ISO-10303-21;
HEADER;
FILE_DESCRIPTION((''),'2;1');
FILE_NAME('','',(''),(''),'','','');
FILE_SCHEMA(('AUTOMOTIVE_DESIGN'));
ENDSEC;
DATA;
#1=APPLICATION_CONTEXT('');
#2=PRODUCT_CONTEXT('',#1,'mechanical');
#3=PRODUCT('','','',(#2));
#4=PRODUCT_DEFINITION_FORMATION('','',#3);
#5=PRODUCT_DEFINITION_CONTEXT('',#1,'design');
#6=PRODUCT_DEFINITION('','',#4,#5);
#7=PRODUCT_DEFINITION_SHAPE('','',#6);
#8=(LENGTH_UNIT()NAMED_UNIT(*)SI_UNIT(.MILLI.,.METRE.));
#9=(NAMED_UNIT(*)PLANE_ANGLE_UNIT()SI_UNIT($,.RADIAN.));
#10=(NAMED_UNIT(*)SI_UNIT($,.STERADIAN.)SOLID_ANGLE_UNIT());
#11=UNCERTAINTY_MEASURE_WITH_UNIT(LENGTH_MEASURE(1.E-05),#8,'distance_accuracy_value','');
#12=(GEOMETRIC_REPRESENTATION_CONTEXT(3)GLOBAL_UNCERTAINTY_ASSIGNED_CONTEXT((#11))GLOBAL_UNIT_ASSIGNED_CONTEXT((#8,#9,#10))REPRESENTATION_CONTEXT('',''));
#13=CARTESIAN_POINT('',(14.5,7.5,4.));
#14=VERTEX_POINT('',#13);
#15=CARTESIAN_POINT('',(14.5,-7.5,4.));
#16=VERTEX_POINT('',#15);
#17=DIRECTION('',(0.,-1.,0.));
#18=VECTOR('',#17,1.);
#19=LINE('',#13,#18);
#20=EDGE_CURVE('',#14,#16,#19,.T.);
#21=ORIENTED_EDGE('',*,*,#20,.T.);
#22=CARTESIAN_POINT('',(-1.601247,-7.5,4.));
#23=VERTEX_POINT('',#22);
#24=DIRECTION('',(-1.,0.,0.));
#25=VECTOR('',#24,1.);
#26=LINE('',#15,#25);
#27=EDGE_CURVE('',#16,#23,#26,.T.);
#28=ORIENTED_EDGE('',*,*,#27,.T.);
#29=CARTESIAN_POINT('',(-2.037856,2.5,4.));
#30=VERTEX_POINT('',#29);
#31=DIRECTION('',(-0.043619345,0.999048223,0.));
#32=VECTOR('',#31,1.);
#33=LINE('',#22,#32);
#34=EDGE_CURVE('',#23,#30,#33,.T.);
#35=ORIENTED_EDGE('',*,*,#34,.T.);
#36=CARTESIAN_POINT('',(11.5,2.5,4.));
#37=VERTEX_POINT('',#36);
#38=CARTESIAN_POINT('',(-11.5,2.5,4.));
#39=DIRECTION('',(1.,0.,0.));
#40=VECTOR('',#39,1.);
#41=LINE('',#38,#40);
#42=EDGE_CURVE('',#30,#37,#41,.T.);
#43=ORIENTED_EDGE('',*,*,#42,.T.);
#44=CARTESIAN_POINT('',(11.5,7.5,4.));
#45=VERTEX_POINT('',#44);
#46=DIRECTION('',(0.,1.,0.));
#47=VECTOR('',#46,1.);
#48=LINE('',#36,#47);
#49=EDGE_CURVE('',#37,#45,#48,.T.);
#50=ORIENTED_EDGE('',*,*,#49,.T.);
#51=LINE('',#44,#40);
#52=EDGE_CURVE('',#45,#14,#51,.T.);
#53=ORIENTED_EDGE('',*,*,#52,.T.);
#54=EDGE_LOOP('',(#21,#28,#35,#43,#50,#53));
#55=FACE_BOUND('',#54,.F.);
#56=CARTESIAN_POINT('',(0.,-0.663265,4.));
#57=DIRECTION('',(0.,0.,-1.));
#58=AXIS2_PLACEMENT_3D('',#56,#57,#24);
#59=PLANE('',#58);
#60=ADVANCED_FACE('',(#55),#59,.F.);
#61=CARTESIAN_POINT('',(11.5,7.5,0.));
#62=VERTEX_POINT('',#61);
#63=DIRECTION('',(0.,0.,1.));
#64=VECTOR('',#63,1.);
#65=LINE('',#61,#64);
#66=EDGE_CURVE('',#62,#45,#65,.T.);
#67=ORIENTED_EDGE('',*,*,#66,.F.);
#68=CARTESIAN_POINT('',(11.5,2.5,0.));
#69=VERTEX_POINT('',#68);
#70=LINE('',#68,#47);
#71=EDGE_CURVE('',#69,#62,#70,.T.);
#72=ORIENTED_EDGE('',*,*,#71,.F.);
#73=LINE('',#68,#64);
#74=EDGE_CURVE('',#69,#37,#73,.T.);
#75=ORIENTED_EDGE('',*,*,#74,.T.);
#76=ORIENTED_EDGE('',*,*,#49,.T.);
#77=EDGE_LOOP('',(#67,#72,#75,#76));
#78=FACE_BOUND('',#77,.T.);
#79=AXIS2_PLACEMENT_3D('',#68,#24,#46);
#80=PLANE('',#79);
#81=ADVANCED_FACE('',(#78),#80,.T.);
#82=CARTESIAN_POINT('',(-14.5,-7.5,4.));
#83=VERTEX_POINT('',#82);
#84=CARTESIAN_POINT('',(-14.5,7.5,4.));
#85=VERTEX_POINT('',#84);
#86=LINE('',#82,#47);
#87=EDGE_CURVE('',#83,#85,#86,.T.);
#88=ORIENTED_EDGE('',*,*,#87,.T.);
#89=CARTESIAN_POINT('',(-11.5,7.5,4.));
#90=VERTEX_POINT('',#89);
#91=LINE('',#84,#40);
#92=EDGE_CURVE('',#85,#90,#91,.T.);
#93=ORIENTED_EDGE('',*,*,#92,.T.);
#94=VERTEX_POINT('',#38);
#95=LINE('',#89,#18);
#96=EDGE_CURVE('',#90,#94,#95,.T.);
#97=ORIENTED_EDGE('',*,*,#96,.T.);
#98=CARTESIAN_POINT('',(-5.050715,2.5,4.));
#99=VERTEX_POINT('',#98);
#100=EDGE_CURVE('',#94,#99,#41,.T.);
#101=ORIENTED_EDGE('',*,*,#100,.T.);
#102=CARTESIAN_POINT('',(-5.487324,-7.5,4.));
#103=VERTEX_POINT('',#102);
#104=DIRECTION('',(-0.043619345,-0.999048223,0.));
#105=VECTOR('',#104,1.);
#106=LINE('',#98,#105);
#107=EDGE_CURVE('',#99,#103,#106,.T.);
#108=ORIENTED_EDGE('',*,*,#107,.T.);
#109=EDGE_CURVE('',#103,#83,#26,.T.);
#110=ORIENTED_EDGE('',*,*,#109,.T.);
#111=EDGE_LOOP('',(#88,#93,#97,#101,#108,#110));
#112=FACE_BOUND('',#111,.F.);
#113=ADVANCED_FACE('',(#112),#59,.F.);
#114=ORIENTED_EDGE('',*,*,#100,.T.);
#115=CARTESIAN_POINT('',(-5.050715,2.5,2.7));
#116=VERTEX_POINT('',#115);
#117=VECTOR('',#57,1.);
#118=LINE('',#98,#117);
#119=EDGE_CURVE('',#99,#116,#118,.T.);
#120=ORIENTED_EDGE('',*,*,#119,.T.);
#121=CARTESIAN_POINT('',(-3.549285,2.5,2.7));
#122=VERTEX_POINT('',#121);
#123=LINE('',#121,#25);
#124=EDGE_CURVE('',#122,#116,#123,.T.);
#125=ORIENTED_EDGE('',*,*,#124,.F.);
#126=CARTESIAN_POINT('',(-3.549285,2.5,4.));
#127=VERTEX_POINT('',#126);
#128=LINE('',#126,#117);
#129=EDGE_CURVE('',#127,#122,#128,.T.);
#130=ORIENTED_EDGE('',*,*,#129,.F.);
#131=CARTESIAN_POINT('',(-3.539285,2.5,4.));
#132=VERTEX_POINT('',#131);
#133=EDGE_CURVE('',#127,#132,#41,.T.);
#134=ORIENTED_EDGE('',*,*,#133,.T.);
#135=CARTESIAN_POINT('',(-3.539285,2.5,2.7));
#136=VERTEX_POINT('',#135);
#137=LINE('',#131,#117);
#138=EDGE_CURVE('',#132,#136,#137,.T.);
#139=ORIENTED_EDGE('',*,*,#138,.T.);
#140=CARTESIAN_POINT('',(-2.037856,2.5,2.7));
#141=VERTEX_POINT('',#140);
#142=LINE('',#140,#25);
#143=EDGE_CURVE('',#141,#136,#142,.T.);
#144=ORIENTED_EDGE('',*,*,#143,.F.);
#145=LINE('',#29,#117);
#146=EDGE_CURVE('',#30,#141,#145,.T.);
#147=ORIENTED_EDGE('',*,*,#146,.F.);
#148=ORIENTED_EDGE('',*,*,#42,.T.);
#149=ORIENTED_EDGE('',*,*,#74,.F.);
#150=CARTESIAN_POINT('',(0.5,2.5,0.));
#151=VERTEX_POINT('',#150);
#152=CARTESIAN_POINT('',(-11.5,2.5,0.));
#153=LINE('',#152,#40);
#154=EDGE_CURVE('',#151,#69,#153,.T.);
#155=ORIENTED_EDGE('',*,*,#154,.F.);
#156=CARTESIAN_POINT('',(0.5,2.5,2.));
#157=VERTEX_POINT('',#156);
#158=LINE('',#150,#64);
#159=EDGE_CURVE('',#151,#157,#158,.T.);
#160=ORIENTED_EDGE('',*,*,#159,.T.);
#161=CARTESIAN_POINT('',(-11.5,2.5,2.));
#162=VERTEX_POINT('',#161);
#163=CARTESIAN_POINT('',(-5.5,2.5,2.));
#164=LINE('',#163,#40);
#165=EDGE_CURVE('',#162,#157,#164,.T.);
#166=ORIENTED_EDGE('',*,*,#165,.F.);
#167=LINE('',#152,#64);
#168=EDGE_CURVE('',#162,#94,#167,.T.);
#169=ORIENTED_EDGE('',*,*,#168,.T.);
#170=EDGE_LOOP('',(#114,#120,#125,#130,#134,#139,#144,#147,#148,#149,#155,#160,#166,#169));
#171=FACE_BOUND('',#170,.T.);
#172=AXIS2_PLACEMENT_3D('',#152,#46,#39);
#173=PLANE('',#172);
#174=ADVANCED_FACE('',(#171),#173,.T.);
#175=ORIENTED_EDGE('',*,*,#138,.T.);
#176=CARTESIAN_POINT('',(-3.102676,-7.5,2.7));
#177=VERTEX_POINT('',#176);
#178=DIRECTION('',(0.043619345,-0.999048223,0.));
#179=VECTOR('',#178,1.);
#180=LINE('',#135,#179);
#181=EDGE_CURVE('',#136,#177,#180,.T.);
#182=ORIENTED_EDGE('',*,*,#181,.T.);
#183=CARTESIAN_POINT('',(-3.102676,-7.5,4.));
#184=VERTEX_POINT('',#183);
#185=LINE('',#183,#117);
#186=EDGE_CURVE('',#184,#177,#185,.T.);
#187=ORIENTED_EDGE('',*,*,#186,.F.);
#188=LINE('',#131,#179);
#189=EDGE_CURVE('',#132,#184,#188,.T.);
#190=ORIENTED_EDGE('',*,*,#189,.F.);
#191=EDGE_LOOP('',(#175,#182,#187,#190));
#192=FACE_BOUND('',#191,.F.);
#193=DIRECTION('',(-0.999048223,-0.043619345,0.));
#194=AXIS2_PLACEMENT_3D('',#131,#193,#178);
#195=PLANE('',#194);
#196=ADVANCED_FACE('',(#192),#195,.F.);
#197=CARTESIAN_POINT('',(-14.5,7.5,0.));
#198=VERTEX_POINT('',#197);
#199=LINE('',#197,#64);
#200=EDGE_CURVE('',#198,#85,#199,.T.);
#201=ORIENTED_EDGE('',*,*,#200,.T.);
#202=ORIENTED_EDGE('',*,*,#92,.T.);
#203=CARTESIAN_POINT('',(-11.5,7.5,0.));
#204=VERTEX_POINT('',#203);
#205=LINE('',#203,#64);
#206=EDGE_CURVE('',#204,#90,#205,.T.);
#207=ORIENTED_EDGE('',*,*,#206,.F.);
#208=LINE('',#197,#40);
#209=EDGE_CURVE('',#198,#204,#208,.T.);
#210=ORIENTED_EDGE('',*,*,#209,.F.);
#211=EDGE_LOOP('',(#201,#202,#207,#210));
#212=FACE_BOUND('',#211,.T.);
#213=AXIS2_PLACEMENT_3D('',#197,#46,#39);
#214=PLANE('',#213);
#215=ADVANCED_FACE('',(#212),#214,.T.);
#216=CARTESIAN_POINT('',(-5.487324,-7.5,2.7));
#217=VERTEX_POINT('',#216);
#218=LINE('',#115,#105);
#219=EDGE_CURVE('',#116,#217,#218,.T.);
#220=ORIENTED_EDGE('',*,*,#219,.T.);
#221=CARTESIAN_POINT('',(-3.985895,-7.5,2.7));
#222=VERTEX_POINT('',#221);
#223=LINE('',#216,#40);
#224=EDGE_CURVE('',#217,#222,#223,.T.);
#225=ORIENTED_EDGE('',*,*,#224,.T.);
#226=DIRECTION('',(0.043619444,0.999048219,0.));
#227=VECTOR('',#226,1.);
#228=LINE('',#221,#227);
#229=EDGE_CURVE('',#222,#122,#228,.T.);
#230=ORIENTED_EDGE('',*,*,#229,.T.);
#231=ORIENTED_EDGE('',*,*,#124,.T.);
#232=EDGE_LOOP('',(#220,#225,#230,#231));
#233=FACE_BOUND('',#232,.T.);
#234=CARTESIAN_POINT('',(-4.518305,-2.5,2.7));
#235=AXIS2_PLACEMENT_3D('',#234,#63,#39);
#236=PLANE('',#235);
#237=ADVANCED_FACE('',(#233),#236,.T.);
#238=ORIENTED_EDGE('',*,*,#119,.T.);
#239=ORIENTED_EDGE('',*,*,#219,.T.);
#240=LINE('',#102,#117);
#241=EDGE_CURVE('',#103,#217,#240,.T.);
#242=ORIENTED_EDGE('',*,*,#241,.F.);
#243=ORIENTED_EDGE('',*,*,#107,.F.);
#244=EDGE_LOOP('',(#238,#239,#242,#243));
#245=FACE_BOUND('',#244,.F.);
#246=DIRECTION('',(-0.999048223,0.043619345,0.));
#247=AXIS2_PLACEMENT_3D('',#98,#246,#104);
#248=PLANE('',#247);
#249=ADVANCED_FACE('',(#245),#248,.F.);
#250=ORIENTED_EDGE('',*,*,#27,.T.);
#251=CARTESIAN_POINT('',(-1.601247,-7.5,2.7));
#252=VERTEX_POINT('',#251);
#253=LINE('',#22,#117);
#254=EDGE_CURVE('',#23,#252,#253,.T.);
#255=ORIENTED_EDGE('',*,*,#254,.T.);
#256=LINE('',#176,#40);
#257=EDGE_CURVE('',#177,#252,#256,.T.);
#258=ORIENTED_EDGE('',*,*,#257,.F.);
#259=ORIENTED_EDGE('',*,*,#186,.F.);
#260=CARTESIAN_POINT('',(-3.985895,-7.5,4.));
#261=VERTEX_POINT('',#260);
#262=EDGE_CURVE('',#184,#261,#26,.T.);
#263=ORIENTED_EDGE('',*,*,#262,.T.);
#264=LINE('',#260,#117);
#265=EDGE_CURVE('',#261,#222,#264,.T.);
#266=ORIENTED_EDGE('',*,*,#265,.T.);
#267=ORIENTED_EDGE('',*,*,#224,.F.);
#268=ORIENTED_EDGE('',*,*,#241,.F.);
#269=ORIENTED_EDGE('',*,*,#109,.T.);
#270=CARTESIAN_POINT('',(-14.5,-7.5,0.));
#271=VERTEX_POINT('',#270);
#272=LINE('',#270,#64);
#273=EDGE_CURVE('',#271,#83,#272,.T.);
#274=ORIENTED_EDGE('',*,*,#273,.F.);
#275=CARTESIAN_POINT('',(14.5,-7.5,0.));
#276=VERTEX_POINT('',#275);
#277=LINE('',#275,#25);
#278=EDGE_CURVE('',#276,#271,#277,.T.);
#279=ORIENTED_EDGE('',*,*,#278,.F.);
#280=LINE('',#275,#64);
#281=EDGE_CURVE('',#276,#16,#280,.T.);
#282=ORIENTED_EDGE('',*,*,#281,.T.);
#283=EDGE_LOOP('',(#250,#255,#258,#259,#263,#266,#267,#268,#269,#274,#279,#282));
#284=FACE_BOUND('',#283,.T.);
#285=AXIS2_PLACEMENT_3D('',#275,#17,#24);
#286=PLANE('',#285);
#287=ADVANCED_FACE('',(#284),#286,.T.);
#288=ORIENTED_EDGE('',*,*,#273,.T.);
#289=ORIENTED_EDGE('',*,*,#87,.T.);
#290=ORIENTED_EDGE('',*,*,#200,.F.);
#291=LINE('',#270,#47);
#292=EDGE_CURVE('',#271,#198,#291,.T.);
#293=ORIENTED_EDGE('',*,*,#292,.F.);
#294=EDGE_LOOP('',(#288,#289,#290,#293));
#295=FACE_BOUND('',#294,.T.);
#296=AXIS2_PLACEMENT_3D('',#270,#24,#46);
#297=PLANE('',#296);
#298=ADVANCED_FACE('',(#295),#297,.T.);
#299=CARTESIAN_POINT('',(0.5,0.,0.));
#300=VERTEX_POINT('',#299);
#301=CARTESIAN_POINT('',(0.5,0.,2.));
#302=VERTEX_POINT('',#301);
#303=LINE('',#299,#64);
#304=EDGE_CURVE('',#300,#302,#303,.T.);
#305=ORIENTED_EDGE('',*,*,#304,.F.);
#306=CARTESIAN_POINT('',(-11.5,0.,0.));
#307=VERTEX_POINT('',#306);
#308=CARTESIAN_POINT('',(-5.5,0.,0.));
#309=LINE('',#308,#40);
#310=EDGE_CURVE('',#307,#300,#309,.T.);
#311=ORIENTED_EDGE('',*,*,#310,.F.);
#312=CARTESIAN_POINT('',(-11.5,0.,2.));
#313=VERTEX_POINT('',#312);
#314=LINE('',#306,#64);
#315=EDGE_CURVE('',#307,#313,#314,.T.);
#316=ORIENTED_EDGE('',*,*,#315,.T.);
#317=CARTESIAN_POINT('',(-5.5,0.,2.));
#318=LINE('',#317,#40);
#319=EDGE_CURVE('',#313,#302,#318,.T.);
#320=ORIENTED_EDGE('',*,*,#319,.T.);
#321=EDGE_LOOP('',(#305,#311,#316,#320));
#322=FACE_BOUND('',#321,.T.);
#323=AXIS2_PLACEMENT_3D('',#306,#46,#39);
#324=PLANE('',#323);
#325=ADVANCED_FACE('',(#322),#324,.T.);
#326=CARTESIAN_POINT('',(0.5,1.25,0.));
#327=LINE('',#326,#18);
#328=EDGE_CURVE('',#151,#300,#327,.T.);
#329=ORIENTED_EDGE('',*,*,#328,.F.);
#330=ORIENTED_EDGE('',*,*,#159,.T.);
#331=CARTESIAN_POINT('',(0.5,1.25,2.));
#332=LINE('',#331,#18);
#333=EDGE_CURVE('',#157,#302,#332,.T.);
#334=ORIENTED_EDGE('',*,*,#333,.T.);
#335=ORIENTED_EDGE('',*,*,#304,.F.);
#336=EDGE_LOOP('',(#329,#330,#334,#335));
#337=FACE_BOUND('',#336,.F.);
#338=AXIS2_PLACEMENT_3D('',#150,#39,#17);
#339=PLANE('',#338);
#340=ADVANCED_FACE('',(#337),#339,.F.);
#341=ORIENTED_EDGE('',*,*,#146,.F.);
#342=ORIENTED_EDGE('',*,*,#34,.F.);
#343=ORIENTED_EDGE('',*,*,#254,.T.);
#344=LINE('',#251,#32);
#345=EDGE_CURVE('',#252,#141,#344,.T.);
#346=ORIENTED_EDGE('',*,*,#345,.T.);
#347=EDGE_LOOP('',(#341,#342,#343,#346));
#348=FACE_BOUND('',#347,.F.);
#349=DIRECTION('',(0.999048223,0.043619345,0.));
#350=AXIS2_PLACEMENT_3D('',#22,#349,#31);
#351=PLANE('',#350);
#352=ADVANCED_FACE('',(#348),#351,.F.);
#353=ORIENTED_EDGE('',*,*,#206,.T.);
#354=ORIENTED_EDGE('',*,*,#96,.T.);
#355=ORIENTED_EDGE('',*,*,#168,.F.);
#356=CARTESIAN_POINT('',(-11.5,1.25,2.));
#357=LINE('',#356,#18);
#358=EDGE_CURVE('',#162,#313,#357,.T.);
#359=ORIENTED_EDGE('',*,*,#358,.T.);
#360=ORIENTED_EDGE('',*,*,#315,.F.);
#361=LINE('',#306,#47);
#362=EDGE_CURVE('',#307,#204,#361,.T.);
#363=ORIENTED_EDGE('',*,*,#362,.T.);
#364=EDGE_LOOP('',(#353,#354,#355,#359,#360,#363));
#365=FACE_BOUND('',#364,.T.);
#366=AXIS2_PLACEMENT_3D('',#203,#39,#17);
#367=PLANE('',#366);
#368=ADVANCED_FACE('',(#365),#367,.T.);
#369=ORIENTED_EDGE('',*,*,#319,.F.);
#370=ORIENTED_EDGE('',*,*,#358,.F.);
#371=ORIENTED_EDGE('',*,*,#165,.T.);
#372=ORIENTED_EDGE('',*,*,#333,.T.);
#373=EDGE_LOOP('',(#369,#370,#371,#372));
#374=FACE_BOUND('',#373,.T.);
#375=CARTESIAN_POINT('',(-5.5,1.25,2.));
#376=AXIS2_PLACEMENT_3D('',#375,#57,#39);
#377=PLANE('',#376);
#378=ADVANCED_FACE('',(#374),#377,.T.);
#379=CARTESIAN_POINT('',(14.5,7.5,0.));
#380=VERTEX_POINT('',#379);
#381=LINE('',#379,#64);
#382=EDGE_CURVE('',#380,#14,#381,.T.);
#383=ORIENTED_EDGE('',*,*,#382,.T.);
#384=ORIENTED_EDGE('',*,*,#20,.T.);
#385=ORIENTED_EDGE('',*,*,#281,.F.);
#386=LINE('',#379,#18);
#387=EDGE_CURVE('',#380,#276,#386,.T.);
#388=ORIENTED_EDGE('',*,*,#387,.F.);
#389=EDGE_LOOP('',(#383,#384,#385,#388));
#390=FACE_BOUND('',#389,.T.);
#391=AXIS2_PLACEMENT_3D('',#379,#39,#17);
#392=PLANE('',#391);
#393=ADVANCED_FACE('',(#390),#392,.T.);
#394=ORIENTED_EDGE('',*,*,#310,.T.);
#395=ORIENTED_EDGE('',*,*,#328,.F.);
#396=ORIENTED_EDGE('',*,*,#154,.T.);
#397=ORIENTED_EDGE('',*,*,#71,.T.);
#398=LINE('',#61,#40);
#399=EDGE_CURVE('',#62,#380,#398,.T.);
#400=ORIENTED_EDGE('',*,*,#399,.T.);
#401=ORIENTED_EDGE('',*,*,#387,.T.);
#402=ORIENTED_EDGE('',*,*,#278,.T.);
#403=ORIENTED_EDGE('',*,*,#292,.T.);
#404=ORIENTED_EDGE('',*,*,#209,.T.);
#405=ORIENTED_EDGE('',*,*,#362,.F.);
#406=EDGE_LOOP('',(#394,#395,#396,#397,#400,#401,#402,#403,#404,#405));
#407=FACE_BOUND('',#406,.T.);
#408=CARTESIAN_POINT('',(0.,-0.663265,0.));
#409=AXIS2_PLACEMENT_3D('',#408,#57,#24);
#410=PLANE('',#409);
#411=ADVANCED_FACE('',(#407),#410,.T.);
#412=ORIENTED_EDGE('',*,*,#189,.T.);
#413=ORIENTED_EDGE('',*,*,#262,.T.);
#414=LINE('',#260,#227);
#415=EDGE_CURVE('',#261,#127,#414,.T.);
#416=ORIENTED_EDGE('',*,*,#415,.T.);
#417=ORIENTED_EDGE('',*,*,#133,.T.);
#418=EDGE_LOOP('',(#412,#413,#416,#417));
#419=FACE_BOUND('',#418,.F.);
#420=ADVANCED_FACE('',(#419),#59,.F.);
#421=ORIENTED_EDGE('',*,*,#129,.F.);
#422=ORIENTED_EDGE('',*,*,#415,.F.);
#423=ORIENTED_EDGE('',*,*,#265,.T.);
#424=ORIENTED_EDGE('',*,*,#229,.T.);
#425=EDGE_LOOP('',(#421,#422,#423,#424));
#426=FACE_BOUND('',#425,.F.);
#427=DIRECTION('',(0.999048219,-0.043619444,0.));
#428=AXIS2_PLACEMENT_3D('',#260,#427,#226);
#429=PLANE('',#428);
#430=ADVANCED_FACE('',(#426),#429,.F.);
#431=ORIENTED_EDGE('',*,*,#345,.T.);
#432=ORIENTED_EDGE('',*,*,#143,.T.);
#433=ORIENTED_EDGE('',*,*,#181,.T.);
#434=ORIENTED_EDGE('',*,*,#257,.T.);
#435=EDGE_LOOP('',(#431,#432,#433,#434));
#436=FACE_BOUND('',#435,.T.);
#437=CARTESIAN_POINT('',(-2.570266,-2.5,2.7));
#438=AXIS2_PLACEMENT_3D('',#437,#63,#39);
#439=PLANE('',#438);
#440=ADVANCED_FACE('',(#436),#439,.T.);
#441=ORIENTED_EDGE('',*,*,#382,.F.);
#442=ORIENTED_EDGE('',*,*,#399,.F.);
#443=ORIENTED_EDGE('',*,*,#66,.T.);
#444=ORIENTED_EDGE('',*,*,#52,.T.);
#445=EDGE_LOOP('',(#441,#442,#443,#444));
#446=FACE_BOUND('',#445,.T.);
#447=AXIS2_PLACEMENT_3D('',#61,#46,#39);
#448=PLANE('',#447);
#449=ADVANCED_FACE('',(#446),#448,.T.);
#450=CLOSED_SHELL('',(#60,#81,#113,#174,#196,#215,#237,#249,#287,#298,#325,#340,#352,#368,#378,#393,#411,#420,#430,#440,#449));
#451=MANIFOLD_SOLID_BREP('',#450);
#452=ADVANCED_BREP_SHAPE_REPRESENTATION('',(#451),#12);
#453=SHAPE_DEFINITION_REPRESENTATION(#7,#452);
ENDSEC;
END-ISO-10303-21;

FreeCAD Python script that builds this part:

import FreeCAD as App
import Part
import Sketcher

V = App.Vector
Q = App.Units.Quantity


def add_polygon(sketch, points):
    """Adds a closed chain of lines whose ends are joined by coincident constraints."""
    first, n = sketch.GeometryCount, len(points)
    for a, b in zip(points, points[1:] + points[:1]):
        sketch.addGeometry(Part.LineSegment(App.Vector(*a, 0), App.Vector(*b, 0)), False)
    for i in range(n):
        sketch.addConstraint(Sketcher.Constraint("Coincident", first + i, 2, first + (i + 1) % n, 1))

doc = App.newDocument("Part")
body = doc.addObject("PartDesign::Body", "Body")

# Sketch on XY plane
sketch1 = body.newObject("Sketcher::SketchObject", "Sketch")
sketch1.AttachmentSupport = (doc.getObject("XY_Plane"), [""])
sketch1.MapMode = "FlatFace"
add_polygon(sketch1, [(-11.5, 7.5), (-14.5, 7.5), (-14.5, -7.5), (14.5, -7.5), (14.5, 7.5), (11.5, 7.5), (11.5, 2.5), (-11.5, 2.5)])  # lines 0-7
sketch1.addConstraint([
    Sketcher.Constraint("Horizontal", 0),
    Sketcher.Constraint("Vertical", 1),
    Sketcher.Constraint("Horizontal", 2),
    Sketcher.Constraint("Vertical", 3),
    Sketcher.Constraint("Horizontal", 4),
    Sketcher.Constraint("Vertical", 5),
    Sketcher.Constraint("Horizontal", 6),
    Sketcher.Constraint("Vertical", 7),
    Sketcher.Constraint("Symmetric", 0, 2, 2, 2, -1, 1),
    Sketcher.Constraint("Symmetric", 4, 2, 7, 2, -2),
    Sketcher.Constraint("DistanceX", 0, 2, 0, 1, Q("3 mm")),
    Sketcher.Constraint("DistanceX", 2, 1, 2, 2, Q("29 mm")),
    Sketcher.Constraint("DistanceY", 1, 2, 1, 1, Q("15 mm")),
    Sketcher.Constraint("DistanceY", 5, 2, 5, 1, Q("5 mm")),
])
pad1 = body.newObject("PartDesign::Pad", "Pad")
pad1.Profile = sketch1
pad1.Length = 4

# Sketch on XY plane
sketch2 = body.newObject("Sketcher::SketchObject", "Sketch001")
sketch2.AttachmentSupport = (doc.getObject("XY_Plane"), [""])
sketch2.MapMode = "FlatFace"
add_polygon(sketch2, [(-11.5, 0), (-11.5, 2.5), (0.5, 2.5), (0.5, 0)])  # lines 0-3
sketch2.addConstraint([
    Sketcher.Constraint("Vertical", 0),
    Sketcher.Constraint("Horizontal", 1),
    Sketcher.Constraint("Vertical", 2),
    Sketcher.Constraint("Horizontal", 3),
    Sketcher.Constraint("PointOnObject", 2, 2, -1),
    Sketcher.Constraint("DistanceX", 1, 1, 1, 2, Q("12 mm")),
    Sketcher.Constraint("DistanceY", 0, 1, 0, 2, Q("2.5 mm")),
    Sketcher.Constraint("DistanceX", 0, 2, -1, 1, Q("11.5 mm")),
])
pocket1 = body.newObject("PartDesign::Pocket", "Pocket")
pocket1.Profile = sketch2
pocket1.Length = 2
pocket1.Reversed = True

# Sketch on XY plane
sketch3 = body.newObject("Sketcher::SketchObject", "Sketch002")
sketch3.AttachmentSupport = (doc.getObject("XY_Plane"), [""])
sketch3.MapMode = "FlatFace"
sketch3.AttachmentOffset = App.Placement(V(0, 0, 4), App.Rotation())
add_polygon(sketch3, [(-5.1, 2.5), (-5.5, -7.5), (-4, -7.5), (-3.5, 2.5)])  # lines 0-3
add_polygon(sketch3, [(-3.5, 2.5), (-3.1, -7.5), (-1.6, -7.5), (-2, 2.5)])  # lines 4-7
sketch3.addConstraint([
    Sketcher.Constraint("Horizontal", 1),
    Sketcher.Constraint("Horizontal", 3),
    Sketcher.Constraint("Horizontal", 5),
    Sketcher.Constraint("Horizontal", 7),
    Sketcher.Constraint("Parallel", 0, 2),
    Sketcher.Constraint("Parallel", 4, 6),
    Sketcher.Constraint("Horizontal", 1, 2, 4, 2),
    Sketcher.Constraint("Horizontal", 3, 2, 6, 2),
    Sketcher.Constraint("Equal", 3, 5),
    Sketcher.Constraint("Equal", 2, 4),
    Sketcher.Constraint("Angle", 0, Q("-92.499998 deg")),
    Sketcher.Constraint("DistanceY", 1, 2, 2, 2, Q("10 mm")),
    Sketcher.Constraint("DistanceY", 0, 2, -1, 1, Q("7.5 mm")),
    Sketcher.Constraint("DistanceX", 2, 2, 7, 2, Q("0.01 mm")),
    Sketcher.Constraint("DistanceX", 1, 1, 1, 2, Q("1.501429 mm")),
    Sketcher.Constraint("DistanceX", 0, 2, -1, 1, Q("5.487324 mm")),
])
pocket2 = body.newObject("PartDesign::Pocket", "Pocket001")
pocket2.Profile = sketch3
pocket2.Length = 1.3

doc.recompute()
